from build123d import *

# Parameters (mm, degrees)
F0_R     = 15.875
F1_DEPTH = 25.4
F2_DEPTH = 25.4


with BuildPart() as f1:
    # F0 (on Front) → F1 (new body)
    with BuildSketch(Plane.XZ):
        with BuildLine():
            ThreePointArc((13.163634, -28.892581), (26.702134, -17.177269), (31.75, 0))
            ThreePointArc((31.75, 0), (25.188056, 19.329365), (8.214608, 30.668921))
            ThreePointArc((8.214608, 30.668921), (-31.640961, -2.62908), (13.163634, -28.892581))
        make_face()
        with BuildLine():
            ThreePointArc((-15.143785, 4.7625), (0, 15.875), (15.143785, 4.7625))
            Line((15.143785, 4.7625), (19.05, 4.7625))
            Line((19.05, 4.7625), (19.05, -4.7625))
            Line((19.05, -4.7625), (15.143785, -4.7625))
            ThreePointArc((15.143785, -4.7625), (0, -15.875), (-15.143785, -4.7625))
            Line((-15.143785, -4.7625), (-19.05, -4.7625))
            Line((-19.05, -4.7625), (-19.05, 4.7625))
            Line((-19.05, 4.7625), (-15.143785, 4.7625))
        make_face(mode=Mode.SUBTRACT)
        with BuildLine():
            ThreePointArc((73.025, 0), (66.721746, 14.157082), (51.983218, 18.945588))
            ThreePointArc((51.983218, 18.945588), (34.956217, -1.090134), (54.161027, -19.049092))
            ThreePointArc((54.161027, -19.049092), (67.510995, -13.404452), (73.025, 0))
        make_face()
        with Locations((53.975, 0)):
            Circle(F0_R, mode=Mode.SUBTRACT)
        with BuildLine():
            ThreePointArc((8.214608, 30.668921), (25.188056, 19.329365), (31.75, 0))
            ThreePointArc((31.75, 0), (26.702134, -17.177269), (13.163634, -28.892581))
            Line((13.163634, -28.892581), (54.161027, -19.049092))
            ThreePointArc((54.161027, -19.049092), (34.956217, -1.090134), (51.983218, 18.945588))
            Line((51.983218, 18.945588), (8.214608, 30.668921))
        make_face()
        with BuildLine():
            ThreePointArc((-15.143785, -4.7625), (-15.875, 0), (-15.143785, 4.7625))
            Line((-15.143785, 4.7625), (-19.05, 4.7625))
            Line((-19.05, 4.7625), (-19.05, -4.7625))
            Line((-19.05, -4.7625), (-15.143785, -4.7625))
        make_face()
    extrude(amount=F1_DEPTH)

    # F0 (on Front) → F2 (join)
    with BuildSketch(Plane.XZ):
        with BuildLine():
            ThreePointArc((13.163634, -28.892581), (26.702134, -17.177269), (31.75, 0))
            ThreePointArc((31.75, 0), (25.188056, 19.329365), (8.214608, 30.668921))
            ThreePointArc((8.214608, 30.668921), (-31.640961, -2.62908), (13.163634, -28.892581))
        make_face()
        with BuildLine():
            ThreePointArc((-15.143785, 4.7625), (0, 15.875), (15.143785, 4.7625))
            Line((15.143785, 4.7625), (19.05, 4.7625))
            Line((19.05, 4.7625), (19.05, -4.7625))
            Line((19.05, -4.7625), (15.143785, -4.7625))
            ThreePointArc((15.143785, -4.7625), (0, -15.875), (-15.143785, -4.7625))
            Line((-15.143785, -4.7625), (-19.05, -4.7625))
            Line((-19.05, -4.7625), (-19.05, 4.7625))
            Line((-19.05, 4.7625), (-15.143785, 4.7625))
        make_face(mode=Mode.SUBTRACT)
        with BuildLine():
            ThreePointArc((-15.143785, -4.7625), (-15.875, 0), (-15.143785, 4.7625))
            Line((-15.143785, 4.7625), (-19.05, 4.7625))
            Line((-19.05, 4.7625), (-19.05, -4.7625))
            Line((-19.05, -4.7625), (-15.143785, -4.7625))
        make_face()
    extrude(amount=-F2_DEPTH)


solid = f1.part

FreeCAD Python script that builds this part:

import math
import FreeCAD as App
import Part
import Sketcher

V = App.Vector
Q = App.Units.Quantity

doc = App.newDocument("Part")
body = doc.addObject("PartDesign::Body", "Body")

# Sketch on XZ plane
sketch1 = doc.addObject("Sketcher::SketchObject", "Sketch")
body.addObject(sketch1)
sketch1.AttachmentSupport = (doc.XZ_Plane, [""])
sketch1.MapMode = "FlatFace"
sketch1.addGeometry([
    Part.ArcOfCircle(Part.Circle(V(0, 0, 0), V(0, 0, 1), 31.7), math.radians(75), math.radians(294)),  # 0
    Part.LineSegment(V(13.2, -28.9, 0), V(54.2, -19, 0)),  # 1
    Part.ArcOfCircle(Part.Circle(V(54, 0, 0), V(0, 0, 1), 19.1), math.radians(-89), math.radians(0)),  # 2
    Part.ArcOfCircle(Part.Circle(V(54, 0, 0), V(0, 0, 1), 19), math.radians(0), math.radians(96)),  # 3
    Part.LineSegment(V(52, 18.9, 0), V(8.2, 30.7, 0)),  # 4
    Part.ArcOfCircle(Part.Circle(V(0, 0, 0), V(0, 0, 1), 15.9), math.radians(17), math.radians(163)),  # 5
    Part.LineSegment(V(15.1, 4.8, 0), V(19.1, 4.8, 0)),  # 6
    Part.LineSegment(V(19.1, 4.8, 0), V(19.1, -4.8, 0)),  # 7
    Part.LineSegment(V(19.1, -4.8, 0), V(15.1, -4.8, 0)),  # 8
    Part.ArcOfCircle(Part.Circle(V(0, 0, 0), V(0, 0, 1), 15.9), math.radians(-163), math.radians(-17)),  # 9
    Part.ArcOfCircle(Part.Circle(V(0, 0, 0), V(0, 0, 1), 15.9), math.radians(163), math.radians(197)),  # 10
    Part.Circle(V(54, 0, 0), V(0, 0, 1), 15.9),  # 11
], False)
sketch1.addConstraint([
    Sketcher.Constraint("Coincident", 0, 2, 1, 1),
    Sketcher.Constraint("Coincident", 1, 2, 2, 1),
    Sketcher.Constraint("Tangent", 2, 2, 3, 1),
    Sketcher.Constraint("Coincident", 3, 2, 4, 1),
    Sketcher.Constraint("Tangent", 4, 2, 0, 1),
    Sketcher.Constraint("Coincident", 5, 1, 6, 1),
    Sketcher.Constraint("Coincident", 6, 2, 7, 1),
    Sketcher.Constraint("Coincident", 7, 2, 8, 1),
    Sketcher.Constraint("Coincident", 8, 2, 9, 2),
    Sketcher.Constraint("Tangent", 9, 1, 10, 2),
    Sketcher.Constraint("Tangent", 10, 1, 5, 2),
    Sketcher.Constraint("Horizontal", 6),
    Sketcher.Constraint("Vertical", 7),
    Sketcher.Constraint("Horizontal", 8),
    Sketcher.Constraint("Coincident", 0, 3, -1, 1),
    Sketcher.Constraint("Coincident", 5, 3, -1, 1),
    Sketcher.Constraint("Coincident", 9, 3, -1, 1),
    Sketcher.Constraint("Coincident", 11, 3, 2, 3),
    Sketcher.Constraint("Equal", 2, 3),
    Sketcher.Constraint("Equal", 9, 11),
    Sketcher.Constraint("PointOnObject", 2, 3, -1),
    Sketcher.Constraint("PointOnObject", 2, 2, -1),
    Sketcher.Constraint("Horizontal", 8, 2, 9, 1),
    Sketcher.Constraint("Horizontal", 6, 2, 10, 1),
    Sketcher.Constraint("Vertical", 5, 1, 8, 2),
    Sketcher.Constraint("Diameter", 11, Q("1.25 in")),
    Sketcher.Constraint("Radius", 0, Q("1.25 in")),
    Sketcher.Constraint("Radius", 2, Q("0.75 in")),
    Sketcher.Constraint("DistanceY", 7, 2, 7, 1, Q("0.375 in")),
    Sketcher.Constraint("DistanceX", -1, 1, 6, 2, Q("0.75 in")),
    Sketcher.Constraint("DistanceX", -1, 1, 2, 3, Q("2.125 in")),
    Sketcher.Constraint("Distance", 1, Q("42.162549 mm")),
    Sketcher.Constraint("DistanceY", 0, 2, -1, 1, Q("28.892581 mm")),
    Sketcher.Constraint("DistanceX", -1, 1, 3, 2, Q("51.983218 mm")),
])
pad1 = doc.addObject("PartDesign::Pad", "Pad")
body.addObject(pad1)
pad1.Profile = sketch1
pad1.Length = Q("1 in")

# Sketch on XZ plane
sketch2 = doc.addObject("Sketcher::SketchObject", "Sketch001")
body.addObject(sketch2)
sketch2.AttachmentSupport = (doc.XZ_Plane, [""])
sketch2.MapMode = "FlatFace"
sketch2.addGeometry([
    Part.ArcOfCircle(Part.Circle(V(0, 0, 0), V(0, 0, 1), 31.7), math.radians(-66), math.radians(0)),  # 0
    Part.ArcOfCircle(Part.Circle(V(0, 0, 0), V(0, 0, 1), 31.7), math.radians(0), math.radians(75)),  # 1
    Part.ArcOfCircle(Part.Circle(V(0, 0, 0), V(0, 0, 1), 31.7), math.radians(75), math.radians(294)),  # 2
    Part.ArcOfCircle(Part.Circle(V(0, 0, 0), V(0, 0, 1), 15.9), math.radians(-163), math.radians(-17)),  # 3
    Part.ArcOfCircle(Part.Circle(V(0, 0, 0), V(0, 0, 1), 15.9), math.radians(163), math.radians(197)),  # 4
    Part.ArcOfCircle(Part.Circle(V(0, 0, 0), V(0, 0, 1), 15.9), math.radians(17), math.radians(163)),  # 5
    Part.LineSegment(V(15.1, 4.8, 0), V(19.1, 4.8, 0)),  # 6
    Part.LineSegment(V(19.1, 4.8, 0), V(19.1, -4.8, 0)),  # 7
    Part.LineSegment(V(19.1, -4.8, 0), V(15.1, -4.8, 0)),  # 8
], False)
sketch2.addConstraint([
    Sketcher.Constraint("Tangent", 0, 2, 1, 1),
    Sketcher.Constraint("Tangent", 1, 2, 2, 1),
    Sketcher.Constraint("Tangent", 2, 2, 0, 1),
    Sketcher.Constraint("Tangent", 3, 1, 4, 2),
    Sketcher.Constraint("Tangent", 4, 1, 5, 2),
    Sketcher.Constraint("Coincident", 5, 1, 6, 1),
    Sketcher.Constraint("Coincident", 6, 2, 7, 1),
    Sketcher.Constraint("Coincident", 7, 2, 8, 1),
    Sketcher.Constraint("Coincident", 8, 2, 3, 2),
    Sketcher.Constraint("Horizontal", 6),
    Sketcher.Constraint("Vertical", 7),
    Sketcher.Constraint("Horizontal", 8),
    Sketcher.Constraint("Coincident", 0, 3, -1, 1),
    Sketcher.Constraint("Coincident", 3, 3, -1, 1),
    Sketcher.Constraint("Coincident", 5, 3, -1, 1),
    Sketcher.Constraint("PointOnObject", 0, 2, -1),
    Sketcher.Constraint("Horizontal", 4, 1, 5, 1),
    Sketcher.Constraint("Horizontal", 3, 1, 7, 2),
    Sketcher.Constraint("Vertical", 3, 1, 4, 1),
    Sketcher.Constraint("Radius", 0, Q("1.2499999 in")),
    Sketcher.Constraint("Radius", 3, Q("0.625 in")),
    Sketcher.Constraint("DistanceX", 6, 2, 0, 2, Q("0.5 in")),
    Sketcher.Constraint("DistanceY", 7, 2, 7, 1, Q("0.375 in")),
    Sketcher.Constraint("DistanceY", -1, 1, 1, 2, Q("30.668921 mm")),
    Sketcher.Constraint("DistanceY", 2, 2, -1, 1, Q("28.892581 mm")),
])
pad2 = doc.addObject("PartDesign::Pad", "Pad001")
body.addObject(pad2)
pad2.Profile = sketch2
pad2.Length = Q("1 in")
pad2.Reversed = True

doc.recompute()
